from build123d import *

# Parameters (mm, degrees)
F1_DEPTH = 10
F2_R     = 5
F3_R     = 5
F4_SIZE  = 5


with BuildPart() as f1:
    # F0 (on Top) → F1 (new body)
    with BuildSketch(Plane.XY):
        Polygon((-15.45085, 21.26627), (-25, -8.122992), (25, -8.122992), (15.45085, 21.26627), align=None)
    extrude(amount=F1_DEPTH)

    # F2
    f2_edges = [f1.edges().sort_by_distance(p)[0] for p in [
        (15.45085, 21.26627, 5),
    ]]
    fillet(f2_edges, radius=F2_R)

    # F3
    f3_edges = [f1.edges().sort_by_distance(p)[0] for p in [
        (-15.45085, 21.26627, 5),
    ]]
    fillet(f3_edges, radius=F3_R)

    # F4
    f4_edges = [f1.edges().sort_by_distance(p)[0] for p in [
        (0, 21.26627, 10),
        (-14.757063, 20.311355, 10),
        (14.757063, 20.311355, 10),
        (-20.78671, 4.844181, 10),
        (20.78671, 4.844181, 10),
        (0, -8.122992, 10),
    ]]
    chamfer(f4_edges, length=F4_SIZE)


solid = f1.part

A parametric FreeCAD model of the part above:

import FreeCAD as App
import Part
import Sketcher

V = App.Vector
Q = App.Units.Quantity


def edges_at(feature, points):
    """Names of the edges that pass closest to the given points."""
    edges = feature.Shape.Edges
    near = lambda p: min(range(len(edges)), key=lambda i: edges[i].distToShape(Part.Vertex(*p))[0])
    return sorted({f"Edge{near(p) + 1}" for p in points})


def add_polygon(sketch, points):
    """Adds a closed chain of lines whose ends are joined by coincident constraints."""
    first, n = sketch.GeometryCount, len(points)
    for a, b in zip(points, points[1:] + points[:1]):
        sketch.addGeometry(Part.LineSegment(App.Vector(*a, 0), App.Vector(*b, 0)), False)
    for i in range(n):
        sketch.addConstraint(Sketcher.Constraint("Coincident", first + i, 2, first + (i + 1) % n, 1))

doc = App.newDocument("Part")
body = doc.addObject("PartDesign::Body", "Body")

# Sketch on XY plane
sketch1 = body.newObject("Sketcher::SketchObject", "Sketch")
sketch1.AttachmentSupport = (doc.getObject("XY_Plane"), [""])
sketch1.MapMode = "FlatFace"
add_polygon(sketch1, [(-15, 21), (-25, -8), (25, -8), (15, 21)])  # lines 0-3
sketch1.addConstraint(Sketcher.Constraint("Horizontal", 1))
sketch1.addConstraint(Sketcher.Constraint("Horizontal", 3))
sketch1.addConstraint(Sketcher.Constraint("Equal", 0, 2))
sketch1.addConstraint(Sketcher.Constraint("DistanceX", 1, 1, 1, 2, Q("50 mm")))
sketch1.addConstraint(Sketcher.Constraint("Angle", 0, Q("-108 deg")))
sketch1.addConstraint(Sketcher.Constraint("DistanceX", 0, 2, -1, 1, Q("25 mm")))
sketch1.addConstraint(Sketcher.Constraint("DistanceX", 3, 2, 3, 1, Q("30.9017 mm")))
sketch1.addConstraint(Sketcher.Constraint("DistanceY", -1, 1, 2, 2, Q("21.26627 mm")))
pad1 = body.newObject("PartDesign::Pad", "Pad")
pad1.Profile = sketch1
pad1.Length = 10
doc.recompute()

fillet = body.newObject("PartDesign::Fillet", "Fillet")
fillet.Base = (pad1, edges_at(pad1, [(15.451, 21.266, 5)]))
fillet.Radius = 5
doc.recompute()

fillet2 = body.newObject("PartDesign::Fillet", "Fillet001")
fillet2.Base = (fillet, edges_at(fillet, [(-15.451, 21.266, 5)]))
fillet2.Radius = 5
doc.recompute()

chamfer = body.newObject("PartDesign::Chamfer", "Chamfer")
chamfer.Base = (fillet2, edges_at(fillet2, [
    (0, 21.266, 10),
    (-14.757, 20.311, 10),
    (14.757, 20.311, 10),
    (-20.787, 4.844, 10),
    (20.787, 4.844, 10),
    (0, -8.123, 10),
]))
chamfer.Size = 5

doc.recompute()
